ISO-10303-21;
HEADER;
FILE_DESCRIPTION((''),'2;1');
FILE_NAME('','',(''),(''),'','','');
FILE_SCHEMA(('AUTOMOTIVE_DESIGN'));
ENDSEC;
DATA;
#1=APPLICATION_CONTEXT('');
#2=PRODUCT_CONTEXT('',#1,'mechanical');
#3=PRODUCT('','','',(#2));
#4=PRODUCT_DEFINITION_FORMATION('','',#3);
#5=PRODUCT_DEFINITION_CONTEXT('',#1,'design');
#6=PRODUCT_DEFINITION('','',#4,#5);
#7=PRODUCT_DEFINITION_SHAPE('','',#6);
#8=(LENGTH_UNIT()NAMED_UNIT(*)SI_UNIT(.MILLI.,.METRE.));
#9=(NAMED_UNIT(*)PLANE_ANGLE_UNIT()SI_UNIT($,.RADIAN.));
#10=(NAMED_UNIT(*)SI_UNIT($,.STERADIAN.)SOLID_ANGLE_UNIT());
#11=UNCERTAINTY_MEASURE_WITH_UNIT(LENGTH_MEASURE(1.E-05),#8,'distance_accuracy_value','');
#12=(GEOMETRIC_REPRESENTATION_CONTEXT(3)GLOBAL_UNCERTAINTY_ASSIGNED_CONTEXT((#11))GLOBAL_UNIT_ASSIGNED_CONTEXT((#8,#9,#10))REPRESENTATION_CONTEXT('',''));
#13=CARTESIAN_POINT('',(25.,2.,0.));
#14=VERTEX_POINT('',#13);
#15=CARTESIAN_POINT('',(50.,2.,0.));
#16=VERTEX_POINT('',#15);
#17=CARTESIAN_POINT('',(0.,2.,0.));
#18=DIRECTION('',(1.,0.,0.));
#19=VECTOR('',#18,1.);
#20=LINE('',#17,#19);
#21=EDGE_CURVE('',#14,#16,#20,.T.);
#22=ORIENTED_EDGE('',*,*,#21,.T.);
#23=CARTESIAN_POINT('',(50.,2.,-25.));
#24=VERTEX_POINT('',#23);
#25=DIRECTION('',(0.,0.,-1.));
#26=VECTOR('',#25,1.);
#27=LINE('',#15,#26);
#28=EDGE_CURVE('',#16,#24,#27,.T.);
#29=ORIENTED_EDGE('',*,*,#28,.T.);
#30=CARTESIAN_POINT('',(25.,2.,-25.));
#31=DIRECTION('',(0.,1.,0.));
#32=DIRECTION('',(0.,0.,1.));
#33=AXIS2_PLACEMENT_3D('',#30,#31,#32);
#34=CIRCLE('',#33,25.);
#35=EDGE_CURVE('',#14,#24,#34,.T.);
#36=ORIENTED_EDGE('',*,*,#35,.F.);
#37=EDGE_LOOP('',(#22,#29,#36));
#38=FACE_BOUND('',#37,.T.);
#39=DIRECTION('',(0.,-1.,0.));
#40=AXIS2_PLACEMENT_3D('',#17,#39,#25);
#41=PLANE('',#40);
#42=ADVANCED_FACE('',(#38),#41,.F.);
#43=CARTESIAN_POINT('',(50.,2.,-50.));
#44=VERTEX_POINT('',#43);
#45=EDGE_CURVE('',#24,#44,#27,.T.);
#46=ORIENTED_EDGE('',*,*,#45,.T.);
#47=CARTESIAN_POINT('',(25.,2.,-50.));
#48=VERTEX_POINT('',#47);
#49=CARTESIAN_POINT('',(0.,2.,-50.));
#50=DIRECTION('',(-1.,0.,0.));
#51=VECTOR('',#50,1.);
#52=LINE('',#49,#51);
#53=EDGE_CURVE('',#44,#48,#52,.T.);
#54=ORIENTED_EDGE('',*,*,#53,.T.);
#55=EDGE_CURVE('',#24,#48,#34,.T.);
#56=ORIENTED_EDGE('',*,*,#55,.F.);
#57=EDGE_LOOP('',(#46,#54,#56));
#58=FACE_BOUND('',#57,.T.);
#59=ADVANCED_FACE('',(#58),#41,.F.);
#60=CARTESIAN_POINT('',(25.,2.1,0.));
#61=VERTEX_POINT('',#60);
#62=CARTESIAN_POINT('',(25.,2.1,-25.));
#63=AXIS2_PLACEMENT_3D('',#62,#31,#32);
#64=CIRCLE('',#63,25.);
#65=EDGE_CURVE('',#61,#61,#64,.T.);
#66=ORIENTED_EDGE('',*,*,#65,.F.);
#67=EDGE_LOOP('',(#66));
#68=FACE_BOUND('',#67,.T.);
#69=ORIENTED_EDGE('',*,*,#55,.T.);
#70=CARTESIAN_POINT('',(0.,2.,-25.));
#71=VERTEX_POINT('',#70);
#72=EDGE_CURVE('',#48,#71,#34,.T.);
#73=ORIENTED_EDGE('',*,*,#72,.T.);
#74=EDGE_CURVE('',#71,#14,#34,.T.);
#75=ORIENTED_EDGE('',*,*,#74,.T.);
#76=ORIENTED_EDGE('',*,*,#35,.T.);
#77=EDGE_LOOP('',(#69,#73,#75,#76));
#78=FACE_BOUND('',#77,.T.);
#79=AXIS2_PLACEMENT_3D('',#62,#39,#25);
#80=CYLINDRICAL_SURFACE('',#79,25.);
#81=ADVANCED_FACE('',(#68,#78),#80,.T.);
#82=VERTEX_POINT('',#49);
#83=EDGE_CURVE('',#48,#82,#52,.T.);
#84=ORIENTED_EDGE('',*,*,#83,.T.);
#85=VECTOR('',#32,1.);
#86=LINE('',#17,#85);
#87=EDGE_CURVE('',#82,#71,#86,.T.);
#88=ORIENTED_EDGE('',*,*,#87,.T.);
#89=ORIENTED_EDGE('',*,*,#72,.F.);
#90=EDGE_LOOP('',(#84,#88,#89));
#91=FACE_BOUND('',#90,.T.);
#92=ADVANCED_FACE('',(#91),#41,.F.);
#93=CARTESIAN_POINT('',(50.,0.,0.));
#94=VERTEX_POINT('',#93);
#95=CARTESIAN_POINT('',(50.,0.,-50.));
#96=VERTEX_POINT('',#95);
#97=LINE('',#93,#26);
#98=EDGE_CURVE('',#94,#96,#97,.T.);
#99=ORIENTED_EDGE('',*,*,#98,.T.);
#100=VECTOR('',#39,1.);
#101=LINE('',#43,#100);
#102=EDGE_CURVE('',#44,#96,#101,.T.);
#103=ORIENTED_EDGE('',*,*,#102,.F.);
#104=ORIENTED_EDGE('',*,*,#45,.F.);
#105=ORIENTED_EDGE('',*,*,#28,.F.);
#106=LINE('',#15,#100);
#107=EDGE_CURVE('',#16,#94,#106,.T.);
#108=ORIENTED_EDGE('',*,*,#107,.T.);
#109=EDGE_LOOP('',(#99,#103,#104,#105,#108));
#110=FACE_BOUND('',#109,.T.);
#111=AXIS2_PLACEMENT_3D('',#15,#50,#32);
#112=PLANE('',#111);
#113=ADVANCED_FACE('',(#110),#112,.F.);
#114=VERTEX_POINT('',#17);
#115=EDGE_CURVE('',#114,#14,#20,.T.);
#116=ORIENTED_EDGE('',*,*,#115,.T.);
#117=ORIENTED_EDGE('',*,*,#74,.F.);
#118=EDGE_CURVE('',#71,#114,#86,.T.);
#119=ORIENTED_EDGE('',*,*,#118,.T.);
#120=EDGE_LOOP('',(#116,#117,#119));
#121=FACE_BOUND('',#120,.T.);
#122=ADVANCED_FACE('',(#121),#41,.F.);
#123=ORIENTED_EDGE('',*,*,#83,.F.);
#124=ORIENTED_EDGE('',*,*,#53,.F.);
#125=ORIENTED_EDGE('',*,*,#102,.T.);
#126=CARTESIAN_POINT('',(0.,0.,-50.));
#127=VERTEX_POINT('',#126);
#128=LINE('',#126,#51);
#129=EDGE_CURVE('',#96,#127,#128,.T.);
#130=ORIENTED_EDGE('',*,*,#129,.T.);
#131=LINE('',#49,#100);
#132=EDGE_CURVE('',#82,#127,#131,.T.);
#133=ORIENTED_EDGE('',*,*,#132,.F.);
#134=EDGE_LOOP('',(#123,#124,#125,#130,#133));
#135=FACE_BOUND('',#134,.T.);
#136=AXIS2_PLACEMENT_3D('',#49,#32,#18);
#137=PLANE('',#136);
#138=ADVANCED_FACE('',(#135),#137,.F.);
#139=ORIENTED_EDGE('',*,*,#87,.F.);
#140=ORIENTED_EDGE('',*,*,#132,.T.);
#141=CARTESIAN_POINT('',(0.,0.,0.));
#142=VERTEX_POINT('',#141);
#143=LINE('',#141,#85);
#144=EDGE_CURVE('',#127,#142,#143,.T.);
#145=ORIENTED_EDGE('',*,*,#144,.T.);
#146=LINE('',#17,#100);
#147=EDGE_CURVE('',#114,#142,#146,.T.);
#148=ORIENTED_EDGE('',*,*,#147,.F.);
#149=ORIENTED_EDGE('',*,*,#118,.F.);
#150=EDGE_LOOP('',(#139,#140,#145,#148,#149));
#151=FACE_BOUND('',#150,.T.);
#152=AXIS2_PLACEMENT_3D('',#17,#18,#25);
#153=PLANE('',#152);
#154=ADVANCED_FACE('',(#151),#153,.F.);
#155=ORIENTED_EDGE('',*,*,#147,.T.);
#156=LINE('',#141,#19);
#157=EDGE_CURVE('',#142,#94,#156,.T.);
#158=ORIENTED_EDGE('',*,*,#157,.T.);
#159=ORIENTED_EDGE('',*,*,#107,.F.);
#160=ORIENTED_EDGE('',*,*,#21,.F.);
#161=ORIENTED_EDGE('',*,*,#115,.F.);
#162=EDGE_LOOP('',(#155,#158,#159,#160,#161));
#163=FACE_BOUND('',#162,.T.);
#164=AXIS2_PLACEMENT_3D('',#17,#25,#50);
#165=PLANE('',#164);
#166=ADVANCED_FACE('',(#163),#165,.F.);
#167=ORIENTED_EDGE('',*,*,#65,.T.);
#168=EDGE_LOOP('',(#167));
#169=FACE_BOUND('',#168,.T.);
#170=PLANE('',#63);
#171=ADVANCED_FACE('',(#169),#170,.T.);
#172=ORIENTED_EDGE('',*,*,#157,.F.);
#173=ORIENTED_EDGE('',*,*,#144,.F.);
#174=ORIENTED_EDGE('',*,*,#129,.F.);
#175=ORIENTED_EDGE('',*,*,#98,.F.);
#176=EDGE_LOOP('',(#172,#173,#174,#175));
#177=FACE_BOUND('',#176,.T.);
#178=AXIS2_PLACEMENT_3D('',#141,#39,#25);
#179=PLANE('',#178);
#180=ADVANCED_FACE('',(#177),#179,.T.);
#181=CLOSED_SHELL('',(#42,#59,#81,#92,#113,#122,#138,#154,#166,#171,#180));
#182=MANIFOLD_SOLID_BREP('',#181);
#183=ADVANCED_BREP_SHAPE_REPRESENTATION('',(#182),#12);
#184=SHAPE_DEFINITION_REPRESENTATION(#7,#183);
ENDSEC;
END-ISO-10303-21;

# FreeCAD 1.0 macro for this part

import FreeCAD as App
import Part
import Sketcher
from FreeCAD import Vector

doc = App.newDocument("Part")
params = doc.addObject("Spreadsheet::Sheet", "Params")
for row, (alias, value) in enumerate([
    ("sketch1_width", "50 mm"),
    ("pad1_length", "2 mm"),
    ("sketch2_diameter", "50 mm"),
    ("pad2_length", "0.1 mm"),
], start=1):
    params.set(f"A{row}", alias)
    params.set(f"B{row}", "=" + value)
    params.setAlias(f"B{row}", alias)

body = doc.addObject("PartDesign::Body", "Body")

sketch1 = body.newObject("Sketcher::SketchObject", "Sketch")
sketch1.AttachmentSupport = (doc.getObject("XZ_Plane"), [""])
sketch1.MapMode = "FlatFace"
sketch1.addGeometry(Part.LineSegment(Vector(0, -50, 0), Vector(0, 0, 0)), False)
sketch1.addGeometry(Part.LineSegment(Vector(0, 0, 0), Vector(50, 0, 0)), False)
sketch1.addGeometry(Part.LineSegment(Vector(50, 0, 0), Vector(50, -50, 0)), False)
sketch1.addGeometry(Part.LineSegment(Vector(50, -50, 0), Vector(0, -50, 0)), False)
sketch1.addConstraint(Sketcher.Constraint("Coincident", 0, 2, 1, 1))
sketch1.addConstraint(Sketcher.Constraint("Coincident", 1, 2, 2, 1))
sketch1.addConstraint(Sketcher.Constraint("Coincident", 2, 2, 3, 1))
sketch1.addConstraint(Sketcher.Constraint("Coincident", 3, 2, 0, 1))
sketch1.addConstraint(Sketcher.Constraint("Vertical", 0))
sketch1.addConstraint(Sketcher.Constraint("Horizontal", 1))
sketch1.addConstraint(Sketcher.Constraint("Vertical", 2))
sketch1.addConstraint(Sketcher.Constraint("Horizontal", 3))
sketch1.addConstraint(Sketcher.Constraint("Coincident", 0, 2, -1, 1))
sketch1.addConstraint(Sketcher.Constraint("Equal", 3, 0))
sketch1.addConstraint(Sketcher.Constraint("DistanceX", 1, 1, 1, 2, 50.0))
sketch1.setExpression("Constraints[10]", "Params.sketch1_width")
pad1 = body.newObject("PartDesign::Pad", "Pad")
pad1.Profile = sketch1
pad1.setExpression("Length", "Params.pad1_length")
pad1.Reversed = True

sketch2 = body.newObject("Sketcher::SketchObject", "Sketch001")
sketch2.AttachmentSupport = (doc.getObject("XZ_Plane"), [""])
sketch2.MapMode = "FlatFace"
sketch2.AttachmentOffset = App.Placement(Vector(0, 0, -2), App.Rotation())
sketch2.addGeometry(Part.Circle(Vector(25, -25, 0), Vector(0, 0, 1), 25), False)
sketch2.addConstraint(Sketcher.Constraint("Diameter", 0, 50.0))
sketch2.addConstraint(Sketcher.Constraint("DistanceX", -1, 1, 0, 3, 25.0))
sketch2.addConstraint(Sketcher.Constraint("DistanceY", 0, 3, -1, 1, 25.0))
sketch2.setExpression("Constraints[0]", "Params.sketch2_diameter")
pad2 = body.newObject("PartDesign::Pad", "Pad001")
pad2.Profile = sketch2
pad2.setExpression("Length", "Params.pad2_length")
pad2.Reversed = True

doc.recompute()
